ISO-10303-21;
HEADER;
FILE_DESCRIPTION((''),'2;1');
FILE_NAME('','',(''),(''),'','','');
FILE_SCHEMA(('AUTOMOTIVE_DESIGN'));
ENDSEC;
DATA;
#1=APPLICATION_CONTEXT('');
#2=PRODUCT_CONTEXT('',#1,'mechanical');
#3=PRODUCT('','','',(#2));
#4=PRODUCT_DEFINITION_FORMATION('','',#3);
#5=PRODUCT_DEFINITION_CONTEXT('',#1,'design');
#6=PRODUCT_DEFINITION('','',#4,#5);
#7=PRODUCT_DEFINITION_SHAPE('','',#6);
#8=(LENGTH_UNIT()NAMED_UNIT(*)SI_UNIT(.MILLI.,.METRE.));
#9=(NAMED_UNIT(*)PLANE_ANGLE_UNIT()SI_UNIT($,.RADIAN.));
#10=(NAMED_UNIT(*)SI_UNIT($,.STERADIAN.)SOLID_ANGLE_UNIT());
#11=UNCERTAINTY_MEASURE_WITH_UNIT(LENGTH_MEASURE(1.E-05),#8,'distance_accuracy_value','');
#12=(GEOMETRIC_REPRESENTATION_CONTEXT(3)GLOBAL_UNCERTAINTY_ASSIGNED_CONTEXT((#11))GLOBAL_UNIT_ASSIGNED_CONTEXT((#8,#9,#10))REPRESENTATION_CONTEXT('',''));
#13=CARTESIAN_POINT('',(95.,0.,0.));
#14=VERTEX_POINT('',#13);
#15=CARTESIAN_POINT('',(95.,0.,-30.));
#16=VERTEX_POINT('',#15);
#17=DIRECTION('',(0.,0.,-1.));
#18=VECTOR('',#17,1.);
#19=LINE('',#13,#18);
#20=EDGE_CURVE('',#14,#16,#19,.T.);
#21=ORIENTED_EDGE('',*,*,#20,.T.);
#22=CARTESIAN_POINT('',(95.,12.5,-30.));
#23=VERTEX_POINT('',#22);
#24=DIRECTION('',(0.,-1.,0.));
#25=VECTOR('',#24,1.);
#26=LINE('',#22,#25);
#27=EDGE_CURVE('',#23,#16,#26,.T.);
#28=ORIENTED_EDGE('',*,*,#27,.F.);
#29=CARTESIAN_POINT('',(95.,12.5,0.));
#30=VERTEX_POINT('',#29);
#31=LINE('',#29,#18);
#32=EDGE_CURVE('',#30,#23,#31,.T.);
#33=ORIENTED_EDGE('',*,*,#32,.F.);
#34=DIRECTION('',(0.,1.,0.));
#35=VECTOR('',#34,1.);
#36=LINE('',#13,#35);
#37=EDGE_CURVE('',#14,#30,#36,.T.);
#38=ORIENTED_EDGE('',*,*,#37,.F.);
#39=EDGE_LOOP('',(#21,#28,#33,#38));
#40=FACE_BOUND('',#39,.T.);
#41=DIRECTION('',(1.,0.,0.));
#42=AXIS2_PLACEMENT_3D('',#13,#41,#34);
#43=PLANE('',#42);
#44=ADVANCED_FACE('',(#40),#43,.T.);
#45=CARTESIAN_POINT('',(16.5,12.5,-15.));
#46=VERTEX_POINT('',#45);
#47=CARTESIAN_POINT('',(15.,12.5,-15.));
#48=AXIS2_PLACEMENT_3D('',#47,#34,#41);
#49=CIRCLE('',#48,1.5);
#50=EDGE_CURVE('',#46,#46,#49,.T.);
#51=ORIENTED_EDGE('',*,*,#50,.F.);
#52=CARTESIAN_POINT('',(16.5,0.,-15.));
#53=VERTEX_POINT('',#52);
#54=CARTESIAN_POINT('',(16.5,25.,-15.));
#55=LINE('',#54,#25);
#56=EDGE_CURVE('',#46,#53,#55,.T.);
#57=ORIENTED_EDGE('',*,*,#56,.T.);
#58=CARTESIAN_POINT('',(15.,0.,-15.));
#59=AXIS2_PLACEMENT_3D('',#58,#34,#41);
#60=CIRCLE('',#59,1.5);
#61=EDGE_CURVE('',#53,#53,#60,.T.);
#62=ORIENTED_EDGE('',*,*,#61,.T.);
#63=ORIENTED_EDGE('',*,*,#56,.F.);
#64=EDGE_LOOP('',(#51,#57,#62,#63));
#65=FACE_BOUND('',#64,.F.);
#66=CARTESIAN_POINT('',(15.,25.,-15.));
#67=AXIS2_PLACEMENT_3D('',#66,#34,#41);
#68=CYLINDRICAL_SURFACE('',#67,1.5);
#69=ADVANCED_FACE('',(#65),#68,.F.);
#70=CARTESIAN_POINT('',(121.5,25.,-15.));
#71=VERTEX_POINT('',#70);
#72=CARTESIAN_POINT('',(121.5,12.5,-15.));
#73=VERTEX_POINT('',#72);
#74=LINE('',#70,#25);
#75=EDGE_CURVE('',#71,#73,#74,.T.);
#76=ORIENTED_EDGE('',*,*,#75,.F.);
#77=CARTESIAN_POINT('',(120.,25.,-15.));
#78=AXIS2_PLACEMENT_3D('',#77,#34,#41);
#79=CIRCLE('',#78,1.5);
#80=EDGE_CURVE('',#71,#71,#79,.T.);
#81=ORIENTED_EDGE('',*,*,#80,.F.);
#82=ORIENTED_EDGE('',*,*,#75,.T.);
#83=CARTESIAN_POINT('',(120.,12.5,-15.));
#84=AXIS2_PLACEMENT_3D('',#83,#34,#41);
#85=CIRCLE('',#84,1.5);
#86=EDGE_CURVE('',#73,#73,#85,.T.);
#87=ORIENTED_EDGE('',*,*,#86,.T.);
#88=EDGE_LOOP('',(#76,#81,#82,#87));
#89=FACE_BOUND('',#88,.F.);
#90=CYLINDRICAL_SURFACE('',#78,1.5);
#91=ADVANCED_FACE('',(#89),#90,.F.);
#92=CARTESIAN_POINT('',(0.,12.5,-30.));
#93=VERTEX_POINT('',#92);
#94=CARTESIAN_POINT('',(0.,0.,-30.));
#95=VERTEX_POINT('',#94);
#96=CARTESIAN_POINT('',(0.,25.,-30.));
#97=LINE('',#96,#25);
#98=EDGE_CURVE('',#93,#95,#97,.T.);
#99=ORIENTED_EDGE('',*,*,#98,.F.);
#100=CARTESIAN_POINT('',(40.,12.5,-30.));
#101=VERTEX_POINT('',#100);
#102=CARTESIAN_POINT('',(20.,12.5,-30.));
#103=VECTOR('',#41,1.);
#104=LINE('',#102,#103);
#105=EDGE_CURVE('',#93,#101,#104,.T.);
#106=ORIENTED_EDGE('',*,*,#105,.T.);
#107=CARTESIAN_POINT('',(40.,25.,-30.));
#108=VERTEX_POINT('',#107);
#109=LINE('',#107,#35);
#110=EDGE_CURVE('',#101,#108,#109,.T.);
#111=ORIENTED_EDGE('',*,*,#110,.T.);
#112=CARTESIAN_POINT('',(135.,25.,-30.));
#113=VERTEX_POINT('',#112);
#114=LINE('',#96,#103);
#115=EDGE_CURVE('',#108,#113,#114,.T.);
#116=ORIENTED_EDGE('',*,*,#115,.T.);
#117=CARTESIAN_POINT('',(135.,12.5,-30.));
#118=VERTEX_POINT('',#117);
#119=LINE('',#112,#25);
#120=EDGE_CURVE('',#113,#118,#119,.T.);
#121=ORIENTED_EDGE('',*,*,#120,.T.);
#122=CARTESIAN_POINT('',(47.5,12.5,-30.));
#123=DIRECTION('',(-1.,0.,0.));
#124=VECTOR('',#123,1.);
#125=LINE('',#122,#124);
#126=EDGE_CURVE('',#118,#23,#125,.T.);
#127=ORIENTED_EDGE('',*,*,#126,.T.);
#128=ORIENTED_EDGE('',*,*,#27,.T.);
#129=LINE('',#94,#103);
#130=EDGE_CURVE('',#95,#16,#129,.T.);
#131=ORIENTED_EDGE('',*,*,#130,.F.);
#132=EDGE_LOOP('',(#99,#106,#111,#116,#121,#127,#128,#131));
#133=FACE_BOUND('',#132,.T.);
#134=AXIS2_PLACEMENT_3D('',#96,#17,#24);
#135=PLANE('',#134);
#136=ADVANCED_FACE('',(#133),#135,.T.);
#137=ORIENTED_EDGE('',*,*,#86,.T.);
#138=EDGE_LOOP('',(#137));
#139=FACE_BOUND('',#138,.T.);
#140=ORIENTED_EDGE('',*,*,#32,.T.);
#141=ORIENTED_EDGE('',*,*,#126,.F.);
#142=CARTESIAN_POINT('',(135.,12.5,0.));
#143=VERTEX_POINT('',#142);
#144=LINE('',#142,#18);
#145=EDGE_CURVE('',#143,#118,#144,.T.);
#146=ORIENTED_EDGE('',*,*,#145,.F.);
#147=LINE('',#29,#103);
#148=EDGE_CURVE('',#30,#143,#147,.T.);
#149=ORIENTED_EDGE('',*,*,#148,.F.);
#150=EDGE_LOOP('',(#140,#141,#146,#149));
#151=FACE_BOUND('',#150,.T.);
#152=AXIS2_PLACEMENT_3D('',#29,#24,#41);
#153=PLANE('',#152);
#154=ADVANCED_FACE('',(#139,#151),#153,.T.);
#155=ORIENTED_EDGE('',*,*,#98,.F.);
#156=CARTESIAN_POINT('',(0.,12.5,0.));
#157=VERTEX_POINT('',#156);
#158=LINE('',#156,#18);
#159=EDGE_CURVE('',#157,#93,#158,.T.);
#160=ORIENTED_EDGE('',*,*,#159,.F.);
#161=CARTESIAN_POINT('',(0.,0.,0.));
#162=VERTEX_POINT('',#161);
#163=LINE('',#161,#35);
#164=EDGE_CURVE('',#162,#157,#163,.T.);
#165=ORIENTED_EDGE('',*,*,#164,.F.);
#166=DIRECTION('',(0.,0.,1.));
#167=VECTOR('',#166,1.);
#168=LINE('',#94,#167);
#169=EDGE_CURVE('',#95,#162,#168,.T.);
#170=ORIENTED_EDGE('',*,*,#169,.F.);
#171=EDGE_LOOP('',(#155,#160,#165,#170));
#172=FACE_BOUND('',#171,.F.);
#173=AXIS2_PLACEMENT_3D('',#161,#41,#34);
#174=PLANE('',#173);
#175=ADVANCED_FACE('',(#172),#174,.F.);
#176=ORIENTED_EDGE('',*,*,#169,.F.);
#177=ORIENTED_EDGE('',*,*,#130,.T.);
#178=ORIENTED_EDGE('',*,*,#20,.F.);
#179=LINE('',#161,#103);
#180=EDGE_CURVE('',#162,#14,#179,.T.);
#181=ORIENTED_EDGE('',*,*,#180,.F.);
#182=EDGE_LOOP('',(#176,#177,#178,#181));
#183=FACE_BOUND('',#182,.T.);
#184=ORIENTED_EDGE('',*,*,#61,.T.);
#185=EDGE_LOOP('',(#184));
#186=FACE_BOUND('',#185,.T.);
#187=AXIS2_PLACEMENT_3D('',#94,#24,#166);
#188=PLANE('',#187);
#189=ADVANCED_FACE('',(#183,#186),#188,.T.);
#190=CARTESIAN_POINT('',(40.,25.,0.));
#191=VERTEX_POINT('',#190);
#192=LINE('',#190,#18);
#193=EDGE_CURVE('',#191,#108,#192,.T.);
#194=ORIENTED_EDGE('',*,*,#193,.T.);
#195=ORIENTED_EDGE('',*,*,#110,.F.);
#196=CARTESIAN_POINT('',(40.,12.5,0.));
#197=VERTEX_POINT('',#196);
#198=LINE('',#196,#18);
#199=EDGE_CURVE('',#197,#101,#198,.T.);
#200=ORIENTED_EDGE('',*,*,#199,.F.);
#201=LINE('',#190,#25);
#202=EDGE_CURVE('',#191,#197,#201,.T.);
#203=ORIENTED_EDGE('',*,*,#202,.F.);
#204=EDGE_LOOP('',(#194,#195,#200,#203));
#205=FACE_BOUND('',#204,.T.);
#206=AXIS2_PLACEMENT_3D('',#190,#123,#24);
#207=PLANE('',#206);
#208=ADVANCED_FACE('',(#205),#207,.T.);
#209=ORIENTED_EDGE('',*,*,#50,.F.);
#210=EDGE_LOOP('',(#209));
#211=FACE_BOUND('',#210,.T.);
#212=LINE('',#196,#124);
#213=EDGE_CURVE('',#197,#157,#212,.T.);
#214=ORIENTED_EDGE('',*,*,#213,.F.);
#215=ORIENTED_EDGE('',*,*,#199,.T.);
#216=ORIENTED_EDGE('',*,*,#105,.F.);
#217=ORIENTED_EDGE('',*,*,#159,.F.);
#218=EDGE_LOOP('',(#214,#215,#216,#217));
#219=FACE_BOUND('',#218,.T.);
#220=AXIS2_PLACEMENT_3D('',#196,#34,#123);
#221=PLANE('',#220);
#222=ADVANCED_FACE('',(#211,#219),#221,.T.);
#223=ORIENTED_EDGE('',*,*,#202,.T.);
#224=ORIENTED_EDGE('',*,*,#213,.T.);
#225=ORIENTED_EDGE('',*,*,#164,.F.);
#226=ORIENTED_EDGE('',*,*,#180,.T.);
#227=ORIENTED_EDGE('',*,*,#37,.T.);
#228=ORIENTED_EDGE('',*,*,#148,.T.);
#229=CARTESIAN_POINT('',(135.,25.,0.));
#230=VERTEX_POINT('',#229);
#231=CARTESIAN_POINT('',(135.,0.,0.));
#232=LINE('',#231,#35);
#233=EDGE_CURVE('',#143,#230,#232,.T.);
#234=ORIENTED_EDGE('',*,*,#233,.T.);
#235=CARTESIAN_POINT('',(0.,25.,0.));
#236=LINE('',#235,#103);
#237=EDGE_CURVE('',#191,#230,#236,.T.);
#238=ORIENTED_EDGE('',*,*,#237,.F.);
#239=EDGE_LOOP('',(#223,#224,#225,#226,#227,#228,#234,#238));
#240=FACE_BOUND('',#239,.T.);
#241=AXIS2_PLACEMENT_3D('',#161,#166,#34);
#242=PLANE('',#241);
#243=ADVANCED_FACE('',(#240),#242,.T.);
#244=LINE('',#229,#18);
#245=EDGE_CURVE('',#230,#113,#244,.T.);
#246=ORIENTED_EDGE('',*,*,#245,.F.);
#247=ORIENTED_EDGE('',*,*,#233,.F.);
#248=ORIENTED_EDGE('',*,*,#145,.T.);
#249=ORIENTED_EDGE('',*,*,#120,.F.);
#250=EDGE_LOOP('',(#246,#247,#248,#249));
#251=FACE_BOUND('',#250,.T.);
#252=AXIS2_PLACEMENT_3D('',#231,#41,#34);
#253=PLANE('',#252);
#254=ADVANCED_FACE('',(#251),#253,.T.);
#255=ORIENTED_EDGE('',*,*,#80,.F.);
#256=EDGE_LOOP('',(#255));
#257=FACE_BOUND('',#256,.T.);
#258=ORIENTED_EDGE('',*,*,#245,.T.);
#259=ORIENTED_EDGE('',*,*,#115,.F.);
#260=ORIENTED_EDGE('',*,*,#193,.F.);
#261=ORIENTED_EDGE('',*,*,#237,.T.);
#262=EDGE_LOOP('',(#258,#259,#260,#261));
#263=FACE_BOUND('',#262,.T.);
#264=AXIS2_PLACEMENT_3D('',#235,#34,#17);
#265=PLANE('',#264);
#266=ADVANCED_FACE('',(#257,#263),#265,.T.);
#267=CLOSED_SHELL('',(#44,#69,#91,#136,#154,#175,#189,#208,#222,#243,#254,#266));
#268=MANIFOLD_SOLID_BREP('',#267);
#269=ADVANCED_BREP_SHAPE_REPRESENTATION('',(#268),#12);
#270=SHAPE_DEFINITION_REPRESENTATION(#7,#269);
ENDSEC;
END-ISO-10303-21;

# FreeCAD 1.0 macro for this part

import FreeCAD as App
import Part
import Sketcher

V = App.Vector
Q = App.Units.Quantity

doc = App.newDocument("Part")
body = doc.addObject("PartDesign::Body", "Body")

sketch1 = body.newObject("Sketcher::SketchObject", "Sketch")
sketch1.AttachmentSupport = (doc.getObject("YZ_Plane"), [""])
sketch1.MapMode = "FlatFace"
sketch1.addGeometry([
    Part.LineSegment(V(25, 0, 0), V(0, 0, 0)),
    Part.LineSegment(V(0, 0, 0), V(0, -30, 0)),
    Part.LineSegment(V(0, -30, 0), V(25, -30, 0)),
    Part.LineSegment(V(25, -30, 0), V(25, 0, 0)),
], False)
sketch1.addConstraint([
    Sketcher.Constraint("Coincident", 0, 2, 1, 1),
    Sketcher.Constraint("Coincident", 1, 2, 2, 1),
    Sketcher.Constraint("Coincident", 2, 2, 3, 1),
    Sketcher.Constraint("Coincident", 3, 2, 0, 1),
    Sketcher.Constraint("Horizontal", 0),
    Sketcher.Constraint("Vertical", 1),
    Sketcher.Constraint("Horizontal", 2),
    Sketcher.Constraint("Vertical", 3),
    Sketcher.Constraint("Coincident", 0, 2, -1, 1),
    Sketcher.Constraint("DistanceX", 0, 2, 0, 1, Q("25 mm")),
    Sketcher.Constraint("DistanceY", 1, 2, 1, 1, Q("30 mm")),
])
pad1 = body.newObject("PartDesign::Pad", "Pad")
pad1.Profile = sketch1
pad1.Length = 135

sketch2 = body.newObject("Sketcher::SketchObject", "Sketch001")
sketch2.AttachmentSupport = (doc.getObject("XZ_Plane"), [""])
sketch2.MapMode = "FlatFace"
sketch2.AttachmentOffset = App.Placement(V(0, 0, -25), App.Rotation())
sketch2.addGeometry([
    Part.Circle(V(15, -15, 0), V(0, 0, 1), 1.5),
    Part.Circle(V(120, -15, 0), V(0, 0, 1), 1.5),
], False)
sketch2.addConstraint([
    Sketcher.Constraint("Equal", 0, 1),
    Sketcher.Constraint("Horizontal", 0, 3, 1, 3),
    Sketcher.Constraint("Diameter", 0, Q("3 mm")),
    Sketcher.Constraint("DistanceX", -1, 1, 0, 3, Q("15 mm")),
    Sketcher.Constraint("DistanceY", 0, 3, -1, 1, Q("15 mm")),
    Sketcher.Constraint("DistanceX", -1, 1, 1, 3, Q("120 mm")),
])
pocket1 = body.newObject("PartDesign::Pocket", "Pocket")
pocket1.Profile = sketch2
pocket1.Type = "ThroughAll"
pocket1.Reversed = True

sketch3 = body.newObject("Sketcher::SketchObject", "Sketch002")
sketch3.AttachmentSupport = (doc.getObject("XY_Plane"), [""])
sketch3.MapMode = "FlatFace"
sketch3.addGeometry([
    Part.LineSegment(V(40, 25, 0), V(0, 25, 0)),
    Part.LineSegment(V(0, 25, 0), V(0, 12.5, 0)),
    Part.LineSegment(V(0, 12.5, 0), V(40, 12.5, 0)),
    Part.LineSegment(V(40, 12.5, 0), V(40, 25, 0)),
    Part.LineSegment(V(95, 12.5, 0), V(95, 0, 0)),
    Part.LineSegment(V(95, 0, 0), V(135, 0, 0)),
    Part.LineSegment(V(135, 0, 0), V(135, 12.5, 0)),
    Part.LineSegment(V(135, 12.5, 0), V(95, 12.5, 0)),
], False)
sketch3.addConstraint([
    Sketcher.Constraint("Coincident", 0, 2, 1, 1),
    Sketcher.Constraint("Coincident", 1, 2, 2, 1),
    Sketcher.Constraint("Coincident", 2, 2, 3, 1),
    Sketcher.Constraint("Coincident", 3, 2, 0, 1),
    Sketcher.Constraint("Coincident", 4, 2, 5, 1),
    Sketcher.Constraint("Coincident", 5, 2, 6, 1),
    Sketcher.Constraint("Coincident", 6, 2, 7, 1),
    Sketcher.Constraint("Coincident", 7, 2, 4, 1),
    Sketcher.Constraint("Horizontal", 0),
    Sketcher.Constraint("Vertical", 1),
    Sketcher.Constraint("Horizontal", 2),
    Sketcher.Constraint("Vertical", 3),
    Sketcher.Constraint("Vertical", 4),
    Sketcher.Constraint("Horizontal", 5),
    Sketcher.Constraint("Vertical", 6),
    Sketcher.Constraint("Horizontal", 7),
    Sketcher.Constraint("PointOnObject", 0, 2, -2),
    Sketcher.Constraint("PointOnObject", 4, 2, -1),
    Sketcher.Constraint("Horizontal", 2, 2, 6, 2),
    Sketcher.Constraint("Equal", 2, 5),
    Sketcher.Constraint("Equal", 3, 4),
    Sketcher.Constraint("DistanceX", 0, 2, 0, 1, Q("40 mm")),
    Sketcher.Constraint("DistanceY", 1, 2, 1, 1, Q("12.5 mm")),
    Sketcher.Constraint("DistanceX", -1, 1, 4, 2, Q("95 mm")),
])
pocket2 = body.newObject("PartDesign::Pocket", "Pocket001")
pocket2.Profile = sketch3
pocket2.Type = "ThroughAll"

doc.recompute()
